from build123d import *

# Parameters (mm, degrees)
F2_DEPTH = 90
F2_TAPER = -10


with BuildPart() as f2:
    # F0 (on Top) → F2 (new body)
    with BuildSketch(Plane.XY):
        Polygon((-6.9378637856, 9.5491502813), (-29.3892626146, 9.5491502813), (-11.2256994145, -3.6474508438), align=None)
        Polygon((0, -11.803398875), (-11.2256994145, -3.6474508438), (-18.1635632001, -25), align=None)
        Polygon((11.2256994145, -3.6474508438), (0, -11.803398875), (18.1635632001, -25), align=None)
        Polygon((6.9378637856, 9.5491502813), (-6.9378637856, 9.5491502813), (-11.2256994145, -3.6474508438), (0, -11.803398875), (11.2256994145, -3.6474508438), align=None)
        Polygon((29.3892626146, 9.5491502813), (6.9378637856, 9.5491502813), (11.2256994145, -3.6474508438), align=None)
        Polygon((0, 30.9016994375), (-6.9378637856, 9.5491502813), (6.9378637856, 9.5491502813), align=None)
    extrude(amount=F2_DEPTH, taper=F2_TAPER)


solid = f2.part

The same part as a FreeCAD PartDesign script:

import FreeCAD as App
import Part
import Sketcher
Q = App.Units.Quantity

doc = App.newDocument("Part")
params = doc.addObject("Spreadsheet::Sheet", "Params")
for row, (alias, value) in enumerate([
    ("pad1_length", "90 mm"),
    ("pad1_taper", "10 deg"),
], start=1):
    params.set(f"A{row}", alias)
    params.set(f"B{row}", "=" + value)
    params.setAlias(f"B{row}", alias)

body = doc.addObject("PartDesign::Body", "Body")

sketch1 = body.newObject("Sketcher::SketchObject", "Sketch")
sketch1.AttachmentSupport = (doc.getObject("XY_Plane"), [""])
sketch1.MapMode = "FlatFace"
sketch1.addGeometry([
    Part.LineSegment(App.Vector(-29, 10, 0), App.Vector(-11, -4, 0)),
    Part.LineSegment(App.Vector(-11, -4, 0), App.Vector(-18, -25, 0)),
    Part.LineSegment(App.Vector(-18, -25, 0), App.Vector(0, -12, 0)),
    Part.LineSegment(App.Vector(0, -12, 0), App.Vector(18, -25, 0)),
    Part.LineSegment(App.Vector(18, -25, 0), App.Vector(11, -4, 0)),
    Part.LineSegment(App.Vector(11, -4, 0), App.Vector(29, 10, 0)),
    Part.LineSegment(App.Vector(29, 10, 0), App.Vector(7, 10, 0)),
    Part.LineSegment(App.Vector(7, 10, 0), App.Vector(0, 31, 0)),
    Part.LineSegment(App.Vector(0, 31, 0), App.Vector(-7, 10, 0)),
    Part.LineSegment(App.Vector(-7, 10, 0), App.Vector(-29, 10, 0)),
], False)
sketch1.addConstraint([
    Sketcher.Constraint("Coincident", 0, 2, 1, 1),
    Sketcher.Constraint("Coincident", 1, 2, 2, 1),
    Sketcher.Constraint("Coincident", 2, 2, 3, 1),
    Sketcher.Constraint("Coincident", 3, 2, 4, 1),
    Sketcher.Constraint("Coincident", 4, 2, 5, 1),
    Sketcher.Constraint("Coincident", 5, 2, 6, 1),
    Sketcher.Constraint("Coincident", 6, 2, 7, 1),
    Sketcher.Constraint("Coincident", 7, 2, 8, 1),
    Sketcher.Constraint("Coincident", 8, 2, 9, 1),
    Sketcher.Constraint("Coincident", 9, 2, 0, 1),
    Sketcher.Constraint("Horizontal", 6),
    Sketcher.Constraint("Horizontal", 9),
    Sketcher.Constraint("Symmetric", 1, 2, 3, 2, -2),
    Sketcher.Constraint("Symmetric", 0, 2, 4, 2, -2),
    Sketcher.Constraint("Symmetric", 6, 2, 8, 2, -2),
    Sketcher.Constraint("PointOnObject", 2, 2, -2),
    Sketcher.Constraint("PointOnObject", 7, 2, -2),
    Sketcher.Constraint("Parallel", 0, 3),
    Sketcher.Constraint("Parallel", 2, 5),
    Sketcher.Constraint("Parallel", 4, 7),
    Sketcher.Constraint("Equal", 0, 1),
    Sketcher.Constraint("Equal", 1, 2),
    Sketcher.Constraint("Equal", 5, 7),
    Sketcher.Constraint("Angle", 0, Q("-36 deg")),
    Sketcher.Constraint("Angle", 1, Q("-108 deg")),
    Sketcher.Constraint("DistanceY", 1, 2, -1, 1, Q("25 mm")),
    Sketcher.Constraint("DistanceX", 6, 2, 6, 1, Q("22.451399 mm")),
])
pad1 = body.newObject("PartDesign::Pad", "Pad")
pad1.Profile = sketch1
pad1.setExpression("Length", "Params.pad1_length")
pad1.setExpression("TaperAngle", "Params.pad1_taper")

doc.recompute()
